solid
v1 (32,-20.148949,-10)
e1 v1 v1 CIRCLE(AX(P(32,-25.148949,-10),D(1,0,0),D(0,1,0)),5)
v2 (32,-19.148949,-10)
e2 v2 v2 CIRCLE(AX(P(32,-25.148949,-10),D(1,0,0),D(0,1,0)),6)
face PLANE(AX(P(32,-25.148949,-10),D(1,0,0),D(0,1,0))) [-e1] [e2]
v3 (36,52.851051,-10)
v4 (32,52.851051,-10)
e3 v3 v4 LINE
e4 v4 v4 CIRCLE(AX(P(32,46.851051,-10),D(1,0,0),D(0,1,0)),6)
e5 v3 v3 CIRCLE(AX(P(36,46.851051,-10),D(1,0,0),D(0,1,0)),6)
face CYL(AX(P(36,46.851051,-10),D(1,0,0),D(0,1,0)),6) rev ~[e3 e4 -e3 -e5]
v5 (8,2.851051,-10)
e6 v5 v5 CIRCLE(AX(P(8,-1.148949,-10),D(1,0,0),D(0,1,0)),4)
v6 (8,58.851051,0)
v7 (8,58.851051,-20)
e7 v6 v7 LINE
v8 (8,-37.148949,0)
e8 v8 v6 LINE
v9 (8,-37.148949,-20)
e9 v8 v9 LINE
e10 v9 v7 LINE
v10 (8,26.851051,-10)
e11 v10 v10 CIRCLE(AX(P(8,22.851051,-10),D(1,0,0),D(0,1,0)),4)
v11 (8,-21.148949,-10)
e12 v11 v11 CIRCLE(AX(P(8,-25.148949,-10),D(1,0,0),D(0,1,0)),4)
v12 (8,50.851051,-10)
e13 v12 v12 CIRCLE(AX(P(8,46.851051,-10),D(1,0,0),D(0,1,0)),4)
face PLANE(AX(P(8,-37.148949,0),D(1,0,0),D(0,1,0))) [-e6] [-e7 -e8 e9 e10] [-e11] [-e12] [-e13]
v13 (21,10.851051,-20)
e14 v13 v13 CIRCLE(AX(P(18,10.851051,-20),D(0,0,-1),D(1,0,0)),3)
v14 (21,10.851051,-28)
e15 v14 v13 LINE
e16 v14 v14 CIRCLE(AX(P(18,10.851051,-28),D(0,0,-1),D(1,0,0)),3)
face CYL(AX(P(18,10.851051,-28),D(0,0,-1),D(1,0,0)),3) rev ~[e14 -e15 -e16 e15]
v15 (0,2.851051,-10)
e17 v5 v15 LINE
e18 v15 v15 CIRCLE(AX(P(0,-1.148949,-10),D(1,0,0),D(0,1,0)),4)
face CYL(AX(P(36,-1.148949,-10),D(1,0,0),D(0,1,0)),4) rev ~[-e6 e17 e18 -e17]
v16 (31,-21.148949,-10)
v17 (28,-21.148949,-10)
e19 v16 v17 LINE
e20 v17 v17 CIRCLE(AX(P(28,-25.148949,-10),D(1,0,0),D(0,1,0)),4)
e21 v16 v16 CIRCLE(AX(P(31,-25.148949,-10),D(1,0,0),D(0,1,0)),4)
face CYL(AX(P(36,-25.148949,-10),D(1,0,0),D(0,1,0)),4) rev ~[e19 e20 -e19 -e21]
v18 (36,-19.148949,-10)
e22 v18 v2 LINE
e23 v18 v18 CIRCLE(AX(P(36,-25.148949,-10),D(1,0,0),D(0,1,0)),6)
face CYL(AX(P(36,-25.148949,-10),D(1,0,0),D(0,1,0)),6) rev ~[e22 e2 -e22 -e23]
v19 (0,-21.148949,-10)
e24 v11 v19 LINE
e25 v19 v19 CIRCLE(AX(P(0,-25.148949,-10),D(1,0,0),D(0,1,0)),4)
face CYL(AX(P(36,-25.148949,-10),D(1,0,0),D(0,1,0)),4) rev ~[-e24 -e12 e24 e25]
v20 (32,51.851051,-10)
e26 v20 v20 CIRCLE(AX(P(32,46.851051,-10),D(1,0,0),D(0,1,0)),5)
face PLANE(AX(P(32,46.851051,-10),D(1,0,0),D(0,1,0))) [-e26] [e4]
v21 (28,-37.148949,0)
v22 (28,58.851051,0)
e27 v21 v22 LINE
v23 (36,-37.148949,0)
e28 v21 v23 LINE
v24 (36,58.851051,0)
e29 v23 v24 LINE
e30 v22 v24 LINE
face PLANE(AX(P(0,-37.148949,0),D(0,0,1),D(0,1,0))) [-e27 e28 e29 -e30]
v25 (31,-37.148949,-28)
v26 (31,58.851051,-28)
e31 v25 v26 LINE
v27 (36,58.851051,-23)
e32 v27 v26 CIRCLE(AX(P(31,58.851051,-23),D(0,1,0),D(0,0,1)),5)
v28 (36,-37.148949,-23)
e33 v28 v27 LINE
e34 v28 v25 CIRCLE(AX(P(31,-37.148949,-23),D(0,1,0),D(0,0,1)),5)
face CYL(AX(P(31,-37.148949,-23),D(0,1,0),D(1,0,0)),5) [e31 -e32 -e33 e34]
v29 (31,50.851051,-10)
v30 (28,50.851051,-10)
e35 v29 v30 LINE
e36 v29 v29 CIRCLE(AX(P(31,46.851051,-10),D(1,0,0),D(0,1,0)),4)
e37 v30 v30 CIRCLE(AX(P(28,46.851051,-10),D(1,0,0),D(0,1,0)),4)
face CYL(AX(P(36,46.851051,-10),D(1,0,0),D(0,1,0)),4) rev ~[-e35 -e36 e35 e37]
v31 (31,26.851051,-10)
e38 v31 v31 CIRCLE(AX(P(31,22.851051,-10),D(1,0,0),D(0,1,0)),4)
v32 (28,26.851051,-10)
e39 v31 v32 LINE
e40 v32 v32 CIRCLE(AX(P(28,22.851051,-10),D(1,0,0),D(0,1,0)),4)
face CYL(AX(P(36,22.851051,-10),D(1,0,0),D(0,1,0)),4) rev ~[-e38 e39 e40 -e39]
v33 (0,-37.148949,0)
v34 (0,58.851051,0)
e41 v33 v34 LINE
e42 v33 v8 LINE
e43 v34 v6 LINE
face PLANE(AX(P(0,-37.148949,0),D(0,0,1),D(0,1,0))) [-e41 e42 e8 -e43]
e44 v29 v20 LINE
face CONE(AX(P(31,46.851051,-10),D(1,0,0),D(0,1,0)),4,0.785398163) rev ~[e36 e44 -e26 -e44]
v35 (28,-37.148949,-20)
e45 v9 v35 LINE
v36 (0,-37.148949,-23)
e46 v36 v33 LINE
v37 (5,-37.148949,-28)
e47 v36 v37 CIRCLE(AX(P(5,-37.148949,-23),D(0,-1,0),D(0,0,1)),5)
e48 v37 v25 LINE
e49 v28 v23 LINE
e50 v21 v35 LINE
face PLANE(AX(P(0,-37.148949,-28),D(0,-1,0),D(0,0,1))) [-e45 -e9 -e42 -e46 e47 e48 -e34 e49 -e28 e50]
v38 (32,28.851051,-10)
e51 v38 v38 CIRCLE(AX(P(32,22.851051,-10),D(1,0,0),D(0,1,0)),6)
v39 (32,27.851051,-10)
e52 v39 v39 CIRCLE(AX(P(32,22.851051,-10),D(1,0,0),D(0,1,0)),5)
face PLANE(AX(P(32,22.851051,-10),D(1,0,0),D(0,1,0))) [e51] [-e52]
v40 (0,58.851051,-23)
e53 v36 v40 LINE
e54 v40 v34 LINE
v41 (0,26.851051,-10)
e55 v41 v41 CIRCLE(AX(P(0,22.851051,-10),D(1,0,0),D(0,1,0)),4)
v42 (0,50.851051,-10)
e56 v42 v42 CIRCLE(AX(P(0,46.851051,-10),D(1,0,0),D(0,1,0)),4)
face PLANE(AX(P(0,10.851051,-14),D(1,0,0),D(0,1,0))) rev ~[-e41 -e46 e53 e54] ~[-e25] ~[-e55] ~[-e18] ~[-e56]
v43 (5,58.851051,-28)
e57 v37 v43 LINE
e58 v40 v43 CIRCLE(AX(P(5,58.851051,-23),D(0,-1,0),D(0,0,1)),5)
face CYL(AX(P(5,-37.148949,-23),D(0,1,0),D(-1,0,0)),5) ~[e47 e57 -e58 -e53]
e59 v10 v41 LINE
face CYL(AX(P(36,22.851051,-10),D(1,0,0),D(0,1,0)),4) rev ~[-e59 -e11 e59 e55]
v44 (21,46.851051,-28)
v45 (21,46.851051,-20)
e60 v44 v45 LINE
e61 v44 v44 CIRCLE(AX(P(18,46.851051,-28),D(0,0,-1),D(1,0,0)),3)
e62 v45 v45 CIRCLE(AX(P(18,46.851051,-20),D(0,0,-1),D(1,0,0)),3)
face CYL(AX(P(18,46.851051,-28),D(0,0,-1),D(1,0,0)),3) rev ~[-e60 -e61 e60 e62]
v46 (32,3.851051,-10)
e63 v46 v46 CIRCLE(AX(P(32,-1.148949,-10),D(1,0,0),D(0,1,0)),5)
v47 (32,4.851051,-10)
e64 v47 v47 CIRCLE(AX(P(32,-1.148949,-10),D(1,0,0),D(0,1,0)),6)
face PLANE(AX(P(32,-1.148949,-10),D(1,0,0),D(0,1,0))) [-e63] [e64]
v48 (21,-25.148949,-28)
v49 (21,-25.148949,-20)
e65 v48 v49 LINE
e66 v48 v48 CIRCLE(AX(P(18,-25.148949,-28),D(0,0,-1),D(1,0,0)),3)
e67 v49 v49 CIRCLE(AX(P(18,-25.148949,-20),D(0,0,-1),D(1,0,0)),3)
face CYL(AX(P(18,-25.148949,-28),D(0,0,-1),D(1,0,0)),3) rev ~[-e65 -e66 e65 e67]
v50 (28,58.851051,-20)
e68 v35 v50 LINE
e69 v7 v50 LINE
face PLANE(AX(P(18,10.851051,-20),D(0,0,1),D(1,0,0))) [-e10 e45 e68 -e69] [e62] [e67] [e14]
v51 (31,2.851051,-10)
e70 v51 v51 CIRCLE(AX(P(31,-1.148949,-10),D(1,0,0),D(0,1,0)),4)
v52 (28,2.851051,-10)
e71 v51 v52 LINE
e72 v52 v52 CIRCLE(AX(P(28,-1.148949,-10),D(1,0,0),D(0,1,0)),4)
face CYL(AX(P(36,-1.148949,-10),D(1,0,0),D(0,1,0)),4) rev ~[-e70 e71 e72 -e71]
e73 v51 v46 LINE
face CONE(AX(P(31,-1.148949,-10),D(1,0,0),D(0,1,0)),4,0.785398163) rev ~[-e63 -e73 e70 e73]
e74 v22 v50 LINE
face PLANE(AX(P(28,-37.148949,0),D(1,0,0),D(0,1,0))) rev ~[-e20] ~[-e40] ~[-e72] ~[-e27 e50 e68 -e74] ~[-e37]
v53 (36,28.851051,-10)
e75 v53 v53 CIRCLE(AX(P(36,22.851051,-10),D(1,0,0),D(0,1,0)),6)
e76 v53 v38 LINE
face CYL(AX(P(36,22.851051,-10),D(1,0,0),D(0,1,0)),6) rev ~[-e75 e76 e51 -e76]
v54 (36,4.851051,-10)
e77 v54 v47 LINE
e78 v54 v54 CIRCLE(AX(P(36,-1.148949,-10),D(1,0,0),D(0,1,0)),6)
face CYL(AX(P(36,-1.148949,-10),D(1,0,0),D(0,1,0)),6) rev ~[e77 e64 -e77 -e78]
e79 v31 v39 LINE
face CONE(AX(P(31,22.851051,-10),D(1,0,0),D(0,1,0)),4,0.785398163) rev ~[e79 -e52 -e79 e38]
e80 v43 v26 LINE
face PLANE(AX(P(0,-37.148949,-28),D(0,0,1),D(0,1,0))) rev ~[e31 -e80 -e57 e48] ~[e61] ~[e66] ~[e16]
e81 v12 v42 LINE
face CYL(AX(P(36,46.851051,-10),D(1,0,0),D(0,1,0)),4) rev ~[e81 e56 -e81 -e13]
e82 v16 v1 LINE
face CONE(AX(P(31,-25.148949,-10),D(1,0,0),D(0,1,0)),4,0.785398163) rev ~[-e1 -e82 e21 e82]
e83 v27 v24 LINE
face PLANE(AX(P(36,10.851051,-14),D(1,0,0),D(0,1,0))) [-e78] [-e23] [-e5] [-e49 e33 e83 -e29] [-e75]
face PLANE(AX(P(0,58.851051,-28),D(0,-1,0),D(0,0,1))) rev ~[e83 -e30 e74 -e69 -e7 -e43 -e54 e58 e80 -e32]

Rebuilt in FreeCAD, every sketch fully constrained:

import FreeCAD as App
import Part
import Sketcher

V = App.Vector


def edges_at(feature, points):
    """Names of the edges that pass closest to the given points."""
    edges = feature.Shape.Edges
    near = lambda p: min(range(len(edges)), key=lambda i: edges[i].distToShape(Part.Vertex(*p))[0])
    return sorted({f"Edge{near(p) + 1}" for p in points})


def add_polygon(sketch, points):
    """Adds a closed chain of lines whose ends are joined by coincident constraints."""
    first, n = sketch.GeometryCount, len(points)
    for a, b in zip(points, points[1:] + points[:1]):
        sketch.addGeometry(Part.LineSegment(App.Vector(*a, 0), App.Vector(*b, 0)), False)
    for i in range(n):
        sketch.addConstraint(Sketcher.Constraint("Coincident", first + i, 2, first + (i + 1) % n, 1))

doc = App.newDocument("Part")
body = doc.addObject("PartDesign::Body", "Body")

# Sketch on YZ plane
sketch1 = body.newObject("Sketcher::SketchObject", "Sketch")
sketch1.AttachmentSupport = (doc.getObject("YZ_Plane"), [""])
sketch1.MapMode = "FlatFace"
add_polygon(sketch1, [(-37, 0), (-37, -28), (59, -28), (59, 0)])  # lines 0-3
sketch1.addConstraint(Sketcher.Constraint("Vertical", 0))
sketch1.addConstraint(Sketcher.Constraint("Horizontal", 1))
sketch1.addConstraint(Sketcher.Constraint("Vertical", 2))
sketch1.addConstraint(Sketcher.Constraint("Horizontal", 3))
sketch1.addConstraint(Sketcher.Constraint("PointOnObject", 2, 2, -1))
sketch1.addConstraint(Sketcher.Constraint("DistanceX", 1, 1, 1, 2, 96.0))
sketch1.addConstraint(Sketcher.Constraint("DistanceY", 0, 2, 0, 1, 28.0))
sketch1.addConstraint(Sketcher.Constraint("DistanceX", 0, 2, -1, 1, 37.148949))
pad1 = body.newObject("PartDesign::Pad", "Pad")
pad1.Profile = sketch1
pad1.Length = 36

# Sketch on XY plane
sketch2 = body.newObject("Sketcher::SketchObject", "Sketch001")
sketch2.AttachmentSupport = (doc.getObject("XY_Plane"), [""])
sketch2.MapMode = "FlatFace"
add_polygon(sketch2, [(8, 59), (8, -37), (28, -37), (28, 59)])  # lines 0-3
sketch2.addConstraint(Sketcher.Constraint("Vertical", 0))
sketch2.addConstraint(Sketcher.Constraint("Horizontal", 1))
sketch2.addConstraint(Sketcher.Constraint("Vertical", 2))
sketch2.addConstraint(Sketcher.Constraint("Horizontal", 3))
sketch2.addConstraint(Sketcher.Constraint("DistanceX", 1, 1, 1, 2, 20.0))
sketch2.addConstraint(Sketcher.Constraint("DistanceY", 0, 2, 0, 1, 96.0))
sketch2.addConstraint(Sketcher.Constraint("DistanceX", -1, 1, 0, 2, 8.0))
sketch2.addConstraint(Sketcher.Constraint("DistanceY", 0, 2, -1, 1, 37.148949))
pocket1 = body.newObject("PartDesign::Pocket", "Pocket")
pocket1.Profile = sketch2
pocket1.Length = 20
doc.recompute()

fillet = body.newObject("PartDesign::Fillet", "Fillet")
fillet.Base = (pocket1, edges_at(pocket1, [(36, 10.851, -28), (0, 10.851, -28)]))
fillet.Radius = 5

# Sketch on YZ plane
sketch3 = body.newObject("Sketcher::SketchObject", "Sketch002")
sketch3.AttachmentSupport = (doc.getObject("YZ_Plane"), [""])
sketch3.MapMode = "FlatFace"
sketch3.AttachmentOffset = App.Placement(V(0, 0, 36), App.Rotation())
sketch3.addGeometry(Part.Circle(V(46.9, -10, 0), V(0, 0, 1), 4), False)
sketch3.addGeometry(Part.Circle(V(22.9, -10, 0), V(0, 0, 1), 4), False)
sketch3.addGeometry(Part.Circle(V(-1.1, -10, 0), V(0, 0, 1), 4), False)
sketch3.addGeometry(Part.Circle(V(-25.1, -10, 0), V(0, 0, 1), 4), False)
sketch3.addConstraint(Sketcher.Constraint("Equal", 0, 1))
sketch3.addConstraint(Sketcher.Constraint("Equal", 1, 2))
sketch3.addConstraint(Sketcher.Constraint("Equal", 2, 3))
sketch3.addConstraint(Sketcher.Constraint("Horizontal", 0, 3, 1, 3))
sketch3.addConstraint(Sketcher.Constraint("Horizontal", 1, 3, 2, 3))
sketch3.addConstraint(Sketcher.Constraint("Horizontal", 2, 3, 3, 3))
sketch3.addConstraint(Sketcher.Constraint("Diameter", 0, 8.0))
sketch3.addConstraint(Sketcher.Constraint("DistanceY", 0, 3, -1, 1, 10.0))
sketch3.addConstraint(Sketcher.Constraint("DistanceX", 1, 3, 0, 3, 24.0))
sketch3.addConstraint(Sketcher.Constraint("DistanceX", 2, 3, 1, 3, 24.0))
sketch3.addConstraint(Sketcher.Constraint("DistanceX", 3, 3, 2, 3, 24.0))
sketch3.addConstraint(Sketcher.Constraint("DistanceX", -1, 1, 0, 3, 46.851051))
pocket2 = body.newObject("PartDesign::Pocket", "Pocket001")
pocket2.Profile = sketch3
pocket2.Length = 36

# Sketch on YZ plane
sketch4 = body.newObject("Sketcher::SketchObject", "Sketch003")
sketch4.AttachmentSupport = (doc.getObject("YZ_Plane"), [""])
sketch4.MapMode = "FlatFace"
sketch4.AttachmentOffset = App.Placement(V(0, 0, 36), App.Rotation())
sketch4.addGeometry(Part.Circle(V(-25, -10, 0), V(0, 0, 1), 6), False)
sketch4.addGeometry(Part.Circle(V(-1, -10, 0), V(0, 0, 1), 6), False)
sketch4.addGeometry(Part.Circle(V(23, -10, 0), V(0, 0, 1), 6), False)
sketch4.addGeometry(Part.Circle(V(47, -10, 0), V(0, 0, 1), 6), False)
sketch4.addConstraint(Sketcher.Constraint("Equal", 0, 1))
sketch4.addConstraint(Sketcher.Constraint("Equal", 1, 2))
sketch4.addConstraint(Sketcher.Constraint("Equal", 2, 3))
sketch4.addConstraint(Sketcher.Constraint("Horizontal", 0, 3, 1, 3))
sketch4.addConstraint(Sketcher.Constraint("Horizontal", 1, 3, 2, 3))
sketch4.addConstraint(Sketcher.Constraint("Horizontal", 2, 3, 3, 3))
sketch4.addConstraint(Sketcher.Constraint("Diameter", 0, 12.0))
sketch4.addConstraint(Sketcher.Constraint("DistanceY", 0, 3, -1, 1, 10.0))
sketch4.addConstraint(Sketcher.Constraint("DistanceX", 0, 3, 1, 3, 24.0))
sketch4.addConstraint(Sketcher.Constraint("DistanceX", 1, 3, 2, 3, 24.0))
sketch4.addConstraint(Sketcher.Constraint("DistanceX", 2, 3, 3, 3, 24.0))
sketch4.addConstraint(Sketcher.Constraint("DistanceX", 0, 3, -1, 1, 25.148949))
pocket3 = body.newObject("PartDesign::Pocket", "Pocket002")
pocket3.Profile = sketch4
pocket3.Length = 4
doc.recompute()

chamfer = body.newObject("PartDesign::Chamfer", "Chamfer")
chamfer.Base = (pocket3, edges_at(pocket3, [
    (32, -29.149, -10),
    (32, -5.149, -10),
    (32, 18.851, -10),
    (32, 42.851, -10),
]))
chamfer.Size = 1

# Sketch on XY plane
sketch5 = body.newObject("Sketcher::SketchObject", "Sketch004")
sketch5.AttachmentSupport = (doc.getObject("XY_Plane"), [""])
sketch5.MapMode = "FlatFace"
sketch5.AttachmentOffset = App.Placement(V(0, 0, -28), App.Rotation())
sketch5.addGeometry(Part.Circle(V(18, 46.9, 0), V(0, 0, 1), 3), False)
sketch5.addGeometry(Part.Circle(V(18, 10.9, 0), V(0, 0, 1), 3), False)
sketch5.addGeometry(Part.Circle(V(18, -25.1, 0), V(0, 0, 1), 3), False)
sketch5.addConstraint(Sketcher.Constraint("Equal", 0, 1))
sketch5.addConstraint(Sketcher.Constraint("Equal", 1, 2))
sketch5.addConstraint(Sketcher.Constraint("Vertical", 0, 3, 1, 3))
sketch5.addConstraint(Sketcher.Constraint("Vertical", 1, 3, 2, 3))
sketch5.addConstraint(Sketcher.Constraint("Diameter", 0, 6.0))
sketch5.addConstraint(Sketcher.Constraint("DistanceX", -1, 1, 0, 3, 18.0))
sketch5.addConstraint(Sketcher.Constraint("DistanceY", 1, 3, 0, 3, 36.0))
sketch5.addConstraint(Sketcher.Constraint("DistanceY", 2, 3, 1, 3, 36.0))
sketch5.addConstraint(Sketcher.Constraint("DistanceY", -1, 1, 0, 3, 46.851051))
pocket4 = body.newObject("PartDesign::Pocket", "Pocket003")
pocket4.Profile = sketch5
pocket4.Length = 8
pocket4.Reversed = True

doc.recompute()
